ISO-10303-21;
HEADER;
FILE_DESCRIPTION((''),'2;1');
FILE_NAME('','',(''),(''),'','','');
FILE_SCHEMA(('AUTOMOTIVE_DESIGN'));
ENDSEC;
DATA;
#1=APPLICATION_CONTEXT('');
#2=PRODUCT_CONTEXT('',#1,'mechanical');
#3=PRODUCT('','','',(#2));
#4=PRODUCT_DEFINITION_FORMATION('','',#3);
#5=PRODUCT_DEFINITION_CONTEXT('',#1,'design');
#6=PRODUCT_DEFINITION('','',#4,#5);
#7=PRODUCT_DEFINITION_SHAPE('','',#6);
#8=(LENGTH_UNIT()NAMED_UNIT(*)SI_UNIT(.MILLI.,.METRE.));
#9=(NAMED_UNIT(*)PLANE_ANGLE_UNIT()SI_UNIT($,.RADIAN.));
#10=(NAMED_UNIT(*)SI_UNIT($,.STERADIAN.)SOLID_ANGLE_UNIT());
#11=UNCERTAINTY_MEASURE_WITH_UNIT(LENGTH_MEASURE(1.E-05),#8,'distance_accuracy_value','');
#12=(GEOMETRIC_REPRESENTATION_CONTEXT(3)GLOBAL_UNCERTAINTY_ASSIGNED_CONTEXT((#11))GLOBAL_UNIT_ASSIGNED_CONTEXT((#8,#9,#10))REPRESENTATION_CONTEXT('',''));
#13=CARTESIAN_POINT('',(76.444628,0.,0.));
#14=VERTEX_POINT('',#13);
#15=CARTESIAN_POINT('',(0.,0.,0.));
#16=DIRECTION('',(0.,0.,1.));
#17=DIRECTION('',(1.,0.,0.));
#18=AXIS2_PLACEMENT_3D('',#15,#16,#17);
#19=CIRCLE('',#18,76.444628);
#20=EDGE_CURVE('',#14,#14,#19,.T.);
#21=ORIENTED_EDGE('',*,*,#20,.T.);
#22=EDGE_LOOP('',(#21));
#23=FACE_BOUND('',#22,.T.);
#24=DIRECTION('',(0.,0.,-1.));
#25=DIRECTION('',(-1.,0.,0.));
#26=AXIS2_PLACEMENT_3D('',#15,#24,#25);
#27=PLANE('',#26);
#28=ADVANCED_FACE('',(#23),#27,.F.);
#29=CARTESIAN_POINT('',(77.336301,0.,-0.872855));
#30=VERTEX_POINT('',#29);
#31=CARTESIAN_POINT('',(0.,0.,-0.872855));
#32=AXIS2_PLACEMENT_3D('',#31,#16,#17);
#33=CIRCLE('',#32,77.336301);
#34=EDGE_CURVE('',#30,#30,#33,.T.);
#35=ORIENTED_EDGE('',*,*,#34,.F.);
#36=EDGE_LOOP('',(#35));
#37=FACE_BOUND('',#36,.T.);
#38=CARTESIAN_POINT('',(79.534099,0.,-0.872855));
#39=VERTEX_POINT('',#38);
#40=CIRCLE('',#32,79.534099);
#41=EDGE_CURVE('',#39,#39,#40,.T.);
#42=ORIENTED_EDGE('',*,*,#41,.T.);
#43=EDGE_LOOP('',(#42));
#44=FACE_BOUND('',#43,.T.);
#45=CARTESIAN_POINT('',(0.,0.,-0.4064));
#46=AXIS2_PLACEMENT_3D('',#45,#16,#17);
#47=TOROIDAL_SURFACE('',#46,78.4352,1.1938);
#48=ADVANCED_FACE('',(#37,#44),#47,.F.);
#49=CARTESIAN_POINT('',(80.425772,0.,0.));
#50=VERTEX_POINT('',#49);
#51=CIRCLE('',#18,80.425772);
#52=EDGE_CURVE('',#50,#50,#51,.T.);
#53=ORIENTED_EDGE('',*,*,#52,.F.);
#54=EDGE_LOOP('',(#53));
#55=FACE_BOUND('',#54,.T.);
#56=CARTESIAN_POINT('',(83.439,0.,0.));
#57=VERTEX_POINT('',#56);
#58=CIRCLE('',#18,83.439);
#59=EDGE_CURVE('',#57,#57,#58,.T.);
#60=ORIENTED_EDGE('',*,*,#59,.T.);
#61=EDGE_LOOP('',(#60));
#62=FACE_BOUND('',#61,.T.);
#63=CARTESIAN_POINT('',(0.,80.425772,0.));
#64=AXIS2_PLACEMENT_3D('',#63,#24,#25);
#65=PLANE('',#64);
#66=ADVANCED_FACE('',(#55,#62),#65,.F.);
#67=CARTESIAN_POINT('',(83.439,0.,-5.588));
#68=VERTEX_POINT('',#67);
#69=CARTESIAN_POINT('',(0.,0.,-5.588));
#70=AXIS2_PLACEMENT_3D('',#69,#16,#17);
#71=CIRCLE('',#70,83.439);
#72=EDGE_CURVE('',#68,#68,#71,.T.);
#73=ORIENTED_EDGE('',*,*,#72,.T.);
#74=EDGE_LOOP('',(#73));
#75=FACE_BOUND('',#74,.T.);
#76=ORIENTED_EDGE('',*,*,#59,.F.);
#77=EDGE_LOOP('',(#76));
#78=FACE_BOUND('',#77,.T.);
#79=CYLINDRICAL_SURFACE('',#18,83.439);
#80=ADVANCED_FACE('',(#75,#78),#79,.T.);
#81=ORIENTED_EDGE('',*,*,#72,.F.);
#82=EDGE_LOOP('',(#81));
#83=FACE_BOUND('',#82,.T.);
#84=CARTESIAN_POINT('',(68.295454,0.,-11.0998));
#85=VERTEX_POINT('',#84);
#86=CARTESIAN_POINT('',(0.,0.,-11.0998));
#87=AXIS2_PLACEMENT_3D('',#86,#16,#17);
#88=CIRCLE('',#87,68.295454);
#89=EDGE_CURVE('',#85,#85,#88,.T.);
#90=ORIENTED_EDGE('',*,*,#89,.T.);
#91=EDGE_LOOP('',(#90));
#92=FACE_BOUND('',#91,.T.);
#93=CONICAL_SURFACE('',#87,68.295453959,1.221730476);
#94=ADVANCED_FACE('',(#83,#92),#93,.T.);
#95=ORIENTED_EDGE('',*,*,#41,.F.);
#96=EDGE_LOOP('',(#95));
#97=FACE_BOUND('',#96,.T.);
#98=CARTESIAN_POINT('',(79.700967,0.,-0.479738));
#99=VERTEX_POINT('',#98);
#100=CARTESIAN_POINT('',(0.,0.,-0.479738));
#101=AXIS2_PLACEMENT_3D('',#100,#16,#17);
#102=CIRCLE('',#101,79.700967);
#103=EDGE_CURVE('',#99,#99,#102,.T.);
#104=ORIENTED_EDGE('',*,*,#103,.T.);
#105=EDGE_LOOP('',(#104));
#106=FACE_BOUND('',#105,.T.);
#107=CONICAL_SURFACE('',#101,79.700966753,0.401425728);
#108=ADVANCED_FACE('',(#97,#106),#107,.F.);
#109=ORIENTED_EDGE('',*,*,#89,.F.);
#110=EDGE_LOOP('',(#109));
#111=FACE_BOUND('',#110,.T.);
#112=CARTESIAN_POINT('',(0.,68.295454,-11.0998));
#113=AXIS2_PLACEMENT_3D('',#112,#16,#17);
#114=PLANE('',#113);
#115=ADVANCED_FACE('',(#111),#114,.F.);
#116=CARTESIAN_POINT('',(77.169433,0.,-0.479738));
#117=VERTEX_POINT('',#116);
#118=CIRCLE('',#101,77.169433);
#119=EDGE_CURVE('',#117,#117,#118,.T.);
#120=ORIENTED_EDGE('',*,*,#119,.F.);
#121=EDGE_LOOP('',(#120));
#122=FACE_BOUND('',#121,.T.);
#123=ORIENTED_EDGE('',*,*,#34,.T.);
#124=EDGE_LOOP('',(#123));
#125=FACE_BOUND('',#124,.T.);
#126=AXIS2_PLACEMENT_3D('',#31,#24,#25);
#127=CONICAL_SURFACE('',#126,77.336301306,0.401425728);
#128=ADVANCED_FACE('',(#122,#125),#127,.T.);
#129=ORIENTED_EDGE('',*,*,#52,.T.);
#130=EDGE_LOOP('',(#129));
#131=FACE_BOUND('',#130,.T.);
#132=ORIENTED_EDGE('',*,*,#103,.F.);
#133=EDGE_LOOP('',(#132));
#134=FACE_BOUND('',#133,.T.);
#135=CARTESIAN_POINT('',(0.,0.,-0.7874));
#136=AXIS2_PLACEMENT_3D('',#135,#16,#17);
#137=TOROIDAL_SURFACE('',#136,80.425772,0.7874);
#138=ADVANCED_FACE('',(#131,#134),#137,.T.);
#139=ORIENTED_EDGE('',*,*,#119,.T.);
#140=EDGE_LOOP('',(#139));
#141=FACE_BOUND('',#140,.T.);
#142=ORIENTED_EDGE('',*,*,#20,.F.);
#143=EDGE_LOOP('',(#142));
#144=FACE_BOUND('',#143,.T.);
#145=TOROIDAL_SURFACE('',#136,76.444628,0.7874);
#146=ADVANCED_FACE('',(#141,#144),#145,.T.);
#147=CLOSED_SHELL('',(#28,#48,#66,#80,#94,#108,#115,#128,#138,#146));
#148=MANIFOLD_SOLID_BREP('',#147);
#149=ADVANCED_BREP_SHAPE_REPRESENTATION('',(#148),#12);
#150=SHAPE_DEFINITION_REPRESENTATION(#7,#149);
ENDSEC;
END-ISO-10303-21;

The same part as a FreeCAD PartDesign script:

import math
import FreeCAD as App
import Part
import Sketcher
Q = App.Units.Quantity

doc = App.newDocument("Part")
body = doc.addObject("PartDesign::Body", "Body")

# Sketch on YZ plane
sketch1 = body.newObject("Sketcher::SketchObject", "Sketch")
sketch1.AttachmentSupport = (doc.getObject("YZ_Plane"), [""])
sketch1.MapMode = "FlatFace"
sketch1.addGeometry(Part.LineSegment(App.Vector(76.444628, 0, 0), App.Vector(0, 0, 0)), False)
sketch1.addGeometry(Part.LineSegment(App.Vector(0, 0, 0), App.Vector(0, -11.0998, 0)), False)
sketch1.addGeometry(Part.LineSegment(App.Vector(0, -11.0998, 0), App.Vector(68.295454, -11.0998, 0)), False)
sketch1.addGeometry(Part.LineSegment(App.Vector(68.295454, -11.0998, 0), App.Vector(83.439, -5.588, 0)), False)
sketch1.addGeometry(Part.LineSegment(App.Vector(83.439, -5.588, 0), App.Vector(83.439, 0, 0)), False)
sketch1.addGeometry(Part.LineSegment(App.Vector(83.439, 0, 0), App.Vector(80.425772, 0, 0)), False)
sketch1.addGeometry(Part.ArcOfCircle(Part.Circle(App.Vector(80.425772, -0.7874, 0), App.Vector(0, 0, 1), 0.7874), math.radians(90), math.radians(157)), False)
sketch1.addGeometry(Part.LineSegment(App.Vector(79.700967, -0.479738, 0), App.Vector(79.534099, -0.872855, 0)), False)
sketch1.addGeometry(Part.ArcOfCircle(Part.Circle(App.Vector(78.4352, -0.4064, 0), App.Vector(0, 0, 1), 1.1938), math.radians(-157), math.radians(-23)), False)
sketch1.addGeometry(Part.LineSegment(App.Vector(77.336301, -0.872855, 0), App.Vector(77.169433, -0.479738, 0)), False)
sketch1.addGeometry(Part.ArcOfCircle(Part.Circle(App.Vector(76.444628, -0.7874, 0), App.Vector(0, 0, 1), 0.7874), math.radians(23), math.radians(90)), False)
sketch1.addConstraint(Sketcher.Constraint("Coincident", 0, 2, 1, 1))
sketch1.addConstraint(Sketcher.Constraint("Coincident", 1, 2, 2, 1))
sketch1.addConstraint(Sketcher.Constraint("Coincident", 2, 2, 3, 1))
sketch1.addConstraint(Sketcher.Constraint("Coincident", 3, 2, 4, 1))
sketch1.addConstraint(Sketcher.Constraint("Coincident", 4, 2, 5, 1))
sketch1.addConstraint(Sketcher.Constraint("Tangent", 5, 2, 6, 1))
sketch1.addConstraint(Sketcher.Constraint("Tangent", 6, 2, 7, 1))
sketch1.addConstraint(Sketcher.Constraint("Tangent", 7, 2, 8, 2))
sketch1.addConstraint(Sketcher.Constraint("Tangent", 8, 1, 9, 1))
sketch1.addConstraint(Sketcher.Constraint("Tangent", 9, 2, 10, 1))
sketch1.addConstraint(Sketcher.Constraint("Tangent", 10, 2, 0, 1))
sketch1.addConstraint(Sketcher.Constraint("Horizontal", 0))
sketch1.addConstraint(Sketcher.Constraint("Vertical", 1))
sketch1.addConstraint(Sketcher.Constraint("Horizontal", 2))
sketch1.addConstraint(Sketcher.Constraint("Vertical", 4))
sketch1.addConstraint(Sketcher.Constraint("Horizontal", 5))
sketch1.addConstraint(Sketcher.Constraint("Coincident", 0, 2, -1, 1))
sketch1.addConstraint(Sketcher.Constraint("Equal", 6, 10))
sketch1.addConstraint(Sketcher.Constraint("PointOnObject", 4, 2, -1))
sketch1.addConstraint(Sketcher.Constraint("Horizontal", 7, 2, 8, 1))
sketch1.addConstraint(Sketcher.Constraint("Angle", 3, Q("20 deg")))
sketch1.addConstraint(Sketcher.Constraint("Angle", 7, Q("-113 deg")))
sketch1.addConstraint(Sketcher.Constraint("Radius", 6, Q("0.031 in")))
sketch1.addConstraint(Sketcher.Constraint("Radius", 8, Q("0.047 in")))
sketch1.addConstraint(Sketcher.Constraint("DistanceY", 4, 1, 4, 2, Q("0.22 in")))
sketch1.addConstraint(Sketcher.Constraint("DistanceY", 1, 2, 1, 1, Q("0.437 in")))
sketch1.addConstraint(Sketcher.Constraint("DistanceX", -1, 1, 8, 3, Q("3.088 in")))
sketch1.addConstraint(Sketcher.Constraint("DistanceY", 8, 3, -1, 1, Q("0.016 in")))
sketch1.addConstraint(Sketcher.Constraint("DistanceX", -1, 1, 3, 2, Q("3.285 in")))
revolution = body.newObject("PartDesign::Revolution", "Revolution")
revolution.Profile = sketch1
revolution.ReferenceAxis = (sketch1, ["V_Axis"])
revolution.Angle = 360

doc.recompute()
